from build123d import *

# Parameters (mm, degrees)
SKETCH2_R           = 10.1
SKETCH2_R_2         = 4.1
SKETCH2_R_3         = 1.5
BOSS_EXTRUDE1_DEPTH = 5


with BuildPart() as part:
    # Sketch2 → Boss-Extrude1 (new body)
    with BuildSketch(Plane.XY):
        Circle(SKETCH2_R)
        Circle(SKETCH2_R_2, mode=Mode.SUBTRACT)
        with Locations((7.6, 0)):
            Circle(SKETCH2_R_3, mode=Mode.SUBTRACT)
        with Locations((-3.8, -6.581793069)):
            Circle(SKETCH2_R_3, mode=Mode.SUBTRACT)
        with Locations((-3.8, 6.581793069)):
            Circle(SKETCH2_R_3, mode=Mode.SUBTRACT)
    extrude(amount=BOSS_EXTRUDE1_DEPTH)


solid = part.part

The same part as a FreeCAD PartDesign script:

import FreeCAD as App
import Part
import Sketcher

V = App.Vector
Q = App.Units.Quantity

doc = App.newDocument("Part")
body = doc.addObject("PartDesign::Body", "Body")

# Sketch on XY plane
sketch1 = body.newObject("Sketcher::SketchObject", "Sketch")
sketch1.AttachmentSupport = (doc.getObject("XY_Plane"), [""])
sketch1.MapMode = "FlatFace"
sketch1.addGeometry([
    Part.Circle(V(0, 0, 0), V(0, 0, 1), 10.1),  # 0
    Part.Circle(V(-3.8, -6.6, 0), V(0, 0, 1), 1.5),  # 1
    Part.Circle(V(0, 0, 0), V(0, 0, 1), 4.1),  # 2
    Part.Circle(V(-3.8, 6.6, 0), V(0, 0, 1), 1.5),  # 3
    Part.Circle(V(7.6, 0, 0), V(0, 0, 1), 1.5),  # 4
], False)
sketch1.addConstraint([
    Sketcher.Constraint("Coincident", 0, 3, -1, 1),
    Sketcher.Constraint("Coincident", 2, 3, -1, 1),
    Sketcher.Constraint("Equal", 1, 3),
    Sketcher.Constraint("Equal", 3, 4),
    Sketcher.Constraint("Symmetric", 1, 3, 3, 3, -1),
    Sketcher.Constraint("PointOnObject", 4, 3, -1),
    Sketcher.Constraint("Diameter", 1, Q("3 mm")),
    Sketcher.Constraint("Diameter", 0, Q("20.2 mm")),
    Sketcher.Constraint("Diameter", 2, Q("8.2 mm")),
    Sketcher.Constraint("DistanceX", 1, 3, -1, 1, Q("3.8 mm")),
    Sketcher.Constraint("DistanceX", -1, 1, 4, 3, Q("7.6 mm")),
    Sketcher.Constraint("DistanceY", 1, 3, -1, 1, Q("6.581793 mm")),
])
pad1 = body.newObject("PartDesign::Pad", "Pad")
pad1.Profile = sketch1
pad1.Length = 5

doc.recompute()
